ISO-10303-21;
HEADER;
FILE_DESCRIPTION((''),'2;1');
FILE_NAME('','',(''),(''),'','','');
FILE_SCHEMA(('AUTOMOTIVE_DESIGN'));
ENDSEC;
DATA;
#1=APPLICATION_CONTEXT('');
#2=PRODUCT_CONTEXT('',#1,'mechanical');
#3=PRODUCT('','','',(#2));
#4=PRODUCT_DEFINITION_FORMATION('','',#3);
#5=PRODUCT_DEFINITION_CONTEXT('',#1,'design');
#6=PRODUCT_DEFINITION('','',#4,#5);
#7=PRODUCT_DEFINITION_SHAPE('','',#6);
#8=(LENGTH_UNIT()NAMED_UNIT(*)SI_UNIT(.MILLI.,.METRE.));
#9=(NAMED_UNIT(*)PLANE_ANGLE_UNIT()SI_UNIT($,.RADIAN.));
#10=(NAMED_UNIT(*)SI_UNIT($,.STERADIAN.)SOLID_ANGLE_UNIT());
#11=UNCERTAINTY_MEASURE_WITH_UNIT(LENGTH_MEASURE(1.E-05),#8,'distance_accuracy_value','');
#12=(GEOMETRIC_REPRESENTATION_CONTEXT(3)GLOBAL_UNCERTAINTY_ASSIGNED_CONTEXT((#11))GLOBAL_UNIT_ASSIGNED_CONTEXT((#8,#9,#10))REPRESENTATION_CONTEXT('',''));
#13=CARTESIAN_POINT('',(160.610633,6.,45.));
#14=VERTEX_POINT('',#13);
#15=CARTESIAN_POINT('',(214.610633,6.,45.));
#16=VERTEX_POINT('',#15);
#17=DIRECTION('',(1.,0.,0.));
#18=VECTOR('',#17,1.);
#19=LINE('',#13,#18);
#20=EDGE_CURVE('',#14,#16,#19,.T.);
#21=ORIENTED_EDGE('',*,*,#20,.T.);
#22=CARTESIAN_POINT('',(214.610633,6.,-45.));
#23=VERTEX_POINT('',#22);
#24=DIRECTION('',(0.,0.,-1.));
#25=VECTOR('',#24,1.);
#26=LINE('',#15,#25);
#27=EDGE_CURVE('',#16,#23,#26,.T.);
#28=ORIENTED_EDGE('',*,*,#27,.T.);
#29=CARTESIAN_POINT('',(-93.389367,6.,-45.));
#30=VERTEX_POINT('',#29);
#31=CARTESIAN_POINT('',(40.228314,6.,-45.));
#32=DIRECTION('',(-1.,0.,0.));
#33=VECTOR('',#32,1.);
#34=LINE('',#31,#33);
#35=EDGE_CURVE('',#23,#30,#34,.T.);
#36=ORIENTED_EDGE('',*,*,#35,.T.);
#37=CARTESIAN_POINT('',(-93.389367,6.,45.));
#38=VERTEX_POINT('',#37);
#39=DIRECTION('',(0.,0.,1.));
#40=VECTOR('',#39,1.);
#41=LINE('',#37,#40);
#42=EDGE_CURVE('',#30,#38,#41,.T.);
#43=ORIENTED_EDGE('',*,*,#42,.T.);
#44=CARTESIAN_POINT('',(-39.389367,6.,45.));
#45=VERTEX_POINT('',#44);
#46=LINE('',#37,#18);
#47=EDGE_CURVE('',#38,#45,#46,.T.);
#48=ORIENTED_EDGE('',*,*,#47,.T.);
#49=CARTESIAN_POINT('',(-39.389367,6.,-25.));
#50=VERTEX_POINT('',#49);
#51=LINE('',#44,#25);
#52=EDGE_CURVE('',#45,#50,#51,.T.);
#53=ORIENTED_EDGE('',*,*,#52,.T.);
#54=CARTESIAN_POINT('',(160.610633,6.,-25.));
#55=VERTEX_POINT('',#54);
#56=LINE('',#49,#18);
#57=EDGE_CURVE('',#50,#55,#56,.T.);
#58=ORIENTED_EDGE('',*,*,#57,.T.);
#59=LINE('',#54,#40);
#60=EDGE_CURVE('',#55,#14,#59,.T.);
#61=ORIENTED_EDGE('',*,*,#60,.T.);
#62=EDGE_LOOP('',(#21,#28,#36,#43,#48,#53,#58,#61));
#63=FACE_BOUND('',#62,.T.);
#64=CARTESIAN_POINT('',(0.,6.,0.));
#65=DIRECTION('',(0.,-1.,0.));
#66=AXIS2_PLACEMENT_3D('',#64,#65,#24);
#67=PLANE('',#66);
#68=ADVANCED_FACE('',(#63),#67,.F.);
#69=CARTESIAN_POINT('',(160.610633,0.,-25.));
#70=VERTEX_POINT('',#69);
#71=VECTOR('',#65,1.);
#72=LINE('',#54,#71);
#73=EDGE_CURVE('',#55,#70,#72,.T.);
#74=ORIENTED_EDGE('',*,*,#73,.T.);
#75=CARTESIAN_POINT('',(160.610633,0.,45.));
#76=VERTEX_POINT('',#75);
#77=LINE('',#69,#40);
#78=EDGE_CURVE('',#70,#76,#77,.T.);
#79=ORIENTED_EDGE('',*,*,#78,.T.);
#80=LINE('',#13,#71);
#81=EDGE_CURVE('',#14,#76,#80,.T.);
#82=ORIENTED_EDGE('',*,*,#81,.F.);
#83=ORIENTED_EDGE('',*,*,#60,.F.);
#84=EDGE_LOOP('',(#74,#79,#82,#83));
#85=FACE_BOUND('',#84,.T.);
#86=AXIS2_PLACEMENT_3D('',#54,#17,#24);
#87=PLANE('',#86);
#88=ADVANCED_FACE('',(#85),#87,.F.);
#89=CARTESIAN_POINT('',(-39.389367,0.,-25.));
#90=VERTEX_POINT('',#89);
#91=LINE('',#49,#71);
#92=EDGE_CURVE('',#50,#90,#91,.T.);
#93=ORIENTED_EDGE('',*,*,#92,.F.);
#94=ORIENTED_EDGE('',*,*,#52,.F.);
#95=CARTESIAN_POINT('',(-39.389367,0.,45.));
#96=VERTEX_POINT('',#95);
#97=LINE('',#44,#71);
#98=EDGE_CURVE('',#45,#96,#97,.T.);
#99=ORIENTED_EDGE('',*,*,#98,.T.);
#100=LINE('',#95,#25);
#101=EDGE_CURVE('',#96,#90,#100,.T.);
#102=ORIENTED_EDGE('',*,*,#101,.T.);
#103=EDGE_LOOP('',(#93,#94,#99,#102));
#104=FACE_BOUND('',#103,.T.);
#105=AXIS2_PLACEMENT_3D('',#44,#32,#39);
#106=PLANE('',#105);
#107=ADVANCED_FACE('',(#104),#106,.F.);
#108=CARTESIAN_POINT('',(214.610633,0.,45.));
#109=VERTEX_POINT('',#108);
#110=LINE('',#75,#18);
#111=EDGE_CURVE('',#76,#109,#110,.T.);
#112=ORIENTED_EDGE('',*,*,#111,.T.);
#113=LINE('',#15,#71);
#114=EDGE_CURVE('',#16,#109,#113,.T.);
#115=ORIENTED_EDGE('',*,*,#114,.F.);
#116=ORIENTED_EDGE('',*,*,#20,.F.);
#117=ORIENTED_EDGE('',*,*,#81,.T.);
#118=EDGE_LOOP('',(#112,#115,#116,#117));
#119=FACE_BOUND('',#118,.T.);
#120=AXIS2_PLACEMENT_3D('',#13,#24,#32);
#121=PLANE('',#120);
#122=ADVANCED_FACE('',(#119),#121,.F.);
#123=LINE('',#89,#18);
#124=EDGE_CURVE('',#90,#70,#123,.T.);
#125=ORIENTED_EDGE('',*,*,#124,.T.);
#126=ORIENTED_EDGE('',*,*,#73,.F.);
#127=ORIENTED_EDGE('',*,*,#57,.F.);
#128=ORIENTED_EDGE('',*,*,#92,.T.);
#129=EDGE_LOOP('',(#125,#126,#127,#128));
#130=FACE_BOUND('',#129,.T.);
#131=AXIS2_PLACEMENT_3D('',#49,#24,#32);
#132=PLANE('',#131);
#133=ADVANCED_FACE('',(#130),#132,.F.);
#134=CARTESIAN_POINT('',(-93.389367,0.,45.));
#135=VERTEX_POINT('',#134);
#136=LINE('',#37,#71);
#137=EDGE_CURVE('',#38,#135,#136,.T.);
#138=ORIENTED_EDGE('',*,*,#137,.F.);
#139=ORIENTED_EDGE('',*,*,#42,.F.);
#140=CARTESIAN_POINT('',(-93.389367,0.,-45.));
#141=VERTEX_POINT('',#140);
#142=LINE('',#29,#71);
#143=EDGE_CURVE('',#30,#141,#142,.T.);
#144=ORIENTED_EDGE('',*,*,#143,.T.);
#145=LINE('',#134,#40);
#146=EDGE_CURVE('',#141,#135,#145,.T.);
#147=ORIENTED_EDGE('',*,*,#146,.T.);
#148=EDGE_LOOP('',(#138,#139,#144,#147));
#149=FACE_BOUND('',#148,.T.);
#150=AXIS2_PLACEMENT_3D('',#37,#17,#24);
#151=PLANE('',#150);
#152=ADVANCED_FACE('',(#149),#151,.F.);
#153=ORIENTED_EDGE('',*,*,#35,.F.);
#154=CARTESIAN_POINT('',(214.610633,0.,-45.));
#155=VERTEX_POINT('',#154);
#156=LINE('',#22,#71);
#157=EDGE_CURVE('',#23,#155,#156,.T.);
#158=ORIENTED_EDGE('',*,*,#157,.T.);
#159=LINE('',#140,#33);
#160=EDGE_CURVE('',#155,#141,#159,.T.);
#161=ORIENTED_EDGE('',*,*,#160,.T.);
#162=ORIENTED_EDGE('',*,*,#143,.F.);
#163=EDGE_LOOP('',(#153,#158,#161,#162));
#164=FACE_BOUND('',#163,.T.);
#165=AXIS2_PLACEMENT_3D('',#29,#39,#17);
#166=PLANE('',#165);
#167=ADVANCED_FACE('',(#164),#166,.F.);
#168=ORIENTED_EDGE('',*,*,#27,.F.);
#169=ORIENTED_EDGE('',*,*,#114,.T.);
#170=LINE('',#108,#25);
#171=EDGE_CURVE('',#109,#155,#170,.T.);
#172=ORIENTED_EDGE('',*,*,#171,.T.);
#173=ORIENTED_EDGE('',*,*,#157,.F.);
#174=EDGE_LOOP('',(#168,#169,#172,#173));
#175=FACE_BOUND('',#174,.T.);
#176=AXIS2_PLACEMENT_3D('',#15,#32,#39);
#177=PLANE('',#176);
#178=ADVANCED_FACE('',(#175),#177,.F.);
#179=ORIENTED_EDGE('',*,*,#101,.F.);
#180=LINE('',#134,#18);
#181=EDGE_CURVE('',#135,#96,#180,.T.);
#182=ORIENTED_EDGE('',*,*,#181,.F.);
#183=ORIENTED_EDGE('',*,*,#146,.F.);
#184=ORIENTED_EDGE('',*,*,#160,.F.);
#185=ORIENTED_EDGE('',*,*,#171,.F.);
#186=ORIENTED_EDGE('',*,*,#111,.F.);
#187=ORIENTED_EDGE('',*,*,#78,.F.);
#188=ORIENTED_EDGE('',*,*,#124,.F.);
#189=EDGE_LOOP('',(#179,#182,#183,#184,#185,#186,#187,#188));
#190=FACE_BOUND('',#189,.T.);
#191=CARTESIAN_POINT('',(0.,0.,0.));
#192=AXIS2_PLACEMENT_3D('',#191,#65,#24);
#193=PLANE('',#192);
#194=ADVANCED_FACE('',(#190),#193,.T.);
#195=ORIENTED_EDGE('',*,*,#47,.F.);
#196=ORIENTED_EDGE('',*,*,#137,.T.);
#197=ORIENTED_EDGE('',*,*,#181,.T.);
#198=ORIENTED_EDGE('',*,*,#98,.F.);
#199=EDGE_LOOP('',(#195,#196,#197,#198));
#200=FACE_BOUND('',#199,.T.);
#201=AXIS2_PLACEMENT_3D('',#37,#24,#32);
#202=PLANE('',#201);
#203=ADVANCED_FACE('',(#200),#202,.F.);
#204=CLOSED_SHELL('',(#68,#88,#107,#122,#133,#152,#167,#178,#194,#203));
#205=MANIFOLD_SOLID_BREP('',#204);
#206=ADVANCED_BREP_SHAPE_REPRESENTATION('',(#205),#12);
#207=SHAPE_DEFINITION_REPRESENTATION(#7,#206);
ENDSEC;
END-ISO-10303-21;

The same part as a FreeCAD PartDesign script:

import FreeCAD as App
import Part
import Sketcher
from FreeCAD import Vector
Q = App.Units.Quantity


def add_polygon(sketch, points):
    """Adds a closed chain of lines whose ends are joined by coincident constraints."""
    first, n = sketch.GeometryCount, len(points)
    for a, b in zip(points, points[1:] + points[:1]):
        sketch.addGeometry(Part.LineSegment(App.Vector(*a, 0), App.Vector(*b, 0)), False)
    for i in range(n):
        sketch.addConstraint(Sketcher.Constraint("Coincident", first + i, 2, first + (i + 1) % n, 1))

doc = App.newDocument("Part")
body = doc.addObject("PartDesign::Body", "Body")

# Sketch on XZ plane
sketch1 = body.newObject("Sketcher::SketchObject", "Sketch")
sketch1.AttachmentSupport = (doc.getObject("XZ_Plane"), [""])
sketch1.MapMode = "FlatFace"
add_polygon(sketch1, [(-39, 45), (-39, -25), (161, -25), (161, 45), (215, 45), (215, -45), (-93, -45), (-93, 45)])  # lines 0-7
sketch1.addConstraint([
    Sketcher.Constraint("Vertical", 0),
    Sketcher.Constraint("Horizontal", 1),
    Sketcher.Constraint("Vertical", 2),
    Sketcher.Constraint("Horizontal", 3),
    Sketcher.Constraint("Vertical", 4),
    Sketcher.Constraint("Horizontal", 5),
    Sketcher.Constraint("Vertical", 6),
    Sketcher.Constraint("Horizontal", 7),
    Sketcher.Constraint("Horizontal", 3, 2, 6, 2),
    Sketcher.Constraint("Equal", 3, 7),
    Sketcher.Constraint("DistanceX", 1, 1, 1, 2, Q("200 mm")),
    Sketcher.Constraint("DistanceX", 3, 1, 3, 2, Q("54 mm")),
    Sketcher.Constraint("DistanceY", 0, 2, 0, 1, Q("70 mm")),
    Sketcher.Constraint("DistanceY", 4, 2, 4, 1, Q("90 mm")),
    Sketcher.Constraint("DistanceY", 0, 2, -1, 1, Q("25 mm")),
    Sketcher.Constraint("DistanceX", 0, 2, -1, 1, Q("39.389367 mm")),
])
pad1 = body.newObject("PartDesign::Pad", "Pad")
pad1.Profile = sketch1
pad1.Length = 6
pad1.Reversed = True

doc.recompute()
